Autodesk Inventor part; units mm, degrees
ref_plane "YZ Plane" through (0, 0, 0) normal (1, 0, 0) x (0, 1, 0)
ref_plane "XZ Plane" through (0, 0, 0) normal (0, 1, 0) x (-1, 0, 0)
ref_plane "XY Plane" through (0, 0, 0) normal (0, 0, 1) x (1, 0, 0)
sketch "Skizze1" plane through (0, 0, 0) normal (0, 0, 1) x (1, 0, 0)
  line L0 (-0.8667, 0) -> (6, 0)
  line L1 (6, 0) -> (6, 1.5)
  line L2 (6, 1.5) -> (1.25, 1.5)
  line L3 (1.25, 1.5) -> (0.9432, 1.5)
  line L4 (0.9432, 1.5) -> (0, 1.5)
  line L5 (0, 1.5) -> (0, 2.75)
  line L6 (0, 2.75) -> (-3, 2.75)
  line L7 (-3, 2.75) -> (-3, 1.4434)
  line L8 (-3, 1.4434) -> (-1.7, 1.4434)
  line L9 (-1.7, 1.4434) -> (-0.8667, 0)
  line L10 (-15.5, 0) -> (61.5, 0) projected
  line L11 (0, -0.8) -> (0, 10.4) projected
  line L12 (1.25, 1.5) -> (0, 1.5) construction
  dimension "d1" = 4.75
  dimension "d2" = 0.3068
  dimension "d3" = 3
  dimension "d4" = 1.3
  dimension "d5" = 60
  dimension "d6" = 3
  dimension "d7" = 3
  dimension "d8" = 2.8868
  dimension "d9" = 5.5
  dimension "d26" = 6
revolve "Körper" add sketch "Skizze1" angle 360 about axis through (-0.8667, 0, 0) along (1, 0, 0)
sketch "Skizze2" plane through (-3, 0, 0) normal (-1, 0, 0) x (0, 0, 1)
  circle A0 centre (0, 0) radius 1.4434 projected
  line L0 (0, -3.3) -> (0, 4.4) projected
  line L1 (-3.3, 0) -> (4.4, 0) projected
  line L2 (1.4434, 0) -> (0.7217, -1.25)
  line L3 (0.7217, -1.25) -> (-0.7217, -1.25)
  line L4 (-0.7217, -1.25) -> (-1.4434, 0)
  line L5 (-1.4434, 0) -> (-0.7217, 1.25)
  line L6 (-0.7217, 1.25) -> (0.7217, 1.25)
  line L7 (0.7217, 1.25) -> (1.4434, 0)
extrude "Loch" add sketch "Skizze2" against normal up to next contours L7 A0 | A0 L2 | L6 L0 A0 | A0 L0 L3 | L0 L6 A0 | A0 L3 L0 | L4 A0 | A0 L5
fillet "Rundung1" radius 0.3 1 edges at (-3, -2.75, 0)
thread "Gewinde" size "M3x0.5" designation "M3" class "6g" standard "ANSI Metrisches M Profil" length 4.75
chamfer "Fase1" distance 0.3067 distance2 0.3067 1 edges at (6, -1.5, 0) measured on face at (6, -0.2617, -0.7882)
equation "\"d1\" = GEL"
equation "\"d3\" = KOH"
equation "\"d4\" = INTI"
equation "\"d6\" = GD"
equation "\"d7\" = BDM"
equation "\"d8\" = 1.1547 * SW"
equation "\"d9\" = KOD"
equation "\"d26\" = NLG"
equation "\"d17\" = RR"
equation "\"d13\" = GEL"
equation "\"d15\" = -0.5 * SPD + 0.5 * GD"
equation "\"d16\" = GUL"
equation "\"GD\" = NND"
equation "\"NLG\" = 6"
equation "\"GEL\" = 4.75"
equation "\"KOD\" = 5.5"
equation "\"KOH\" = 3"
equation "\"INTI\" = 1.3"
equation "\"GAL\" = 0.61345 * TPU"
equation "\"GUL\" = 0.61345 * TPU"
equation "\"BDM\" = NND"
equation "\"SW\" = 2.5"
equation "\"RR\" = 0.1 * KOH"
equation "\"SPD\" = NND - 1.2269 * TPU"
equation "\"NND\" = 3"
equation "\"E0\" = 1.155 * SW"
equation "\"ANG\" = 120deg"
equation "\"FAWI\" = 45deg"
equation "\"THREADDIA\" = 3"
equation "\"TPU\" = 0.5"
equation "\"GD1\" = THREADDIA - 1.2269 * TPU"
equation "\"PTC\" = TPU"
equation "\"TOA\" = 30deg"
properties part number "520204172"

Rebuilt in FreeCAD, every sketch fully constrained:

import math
import FreeCAD as App
import Part
import Sketcher
from FreeCAD import Vector
Q = App.Units.Quantity


def edges_at(feature, points):
    """Names of the edges that pass closest to the given points."""
    edges = feature.Shape.Edges
    near = lambda p: min(range(len(edges)), key=lambda i: edges[i].distToShape(Part.Vertex(*p))[0])
    return sorted({f"Edge{near(p) + 1}" for p in points})


def add_polygon(sketch, points):
    """Adds a closed chain of lines whose ends are joined by coincident constraints."""
    first, n = sketch.GeometryCount, len(points)
    for a, b in zip(points, points[1:] + points[:1]):
        sketch.addGeometry(Part.LineSegment(App.Vector(*a, 0), App.Vector(*b, 0)), False)
    for i in range(n):
        sketch.addConstraint(Sketcher.Constraint("Coincident", first + i, 2, first + (i + 1) % n, 1))

doc = App.newDocument("Part")
body = doc.addObject("PartDesign::Body", "Body")

# Sketch on XY plane
sketch1 = body.newObject("Sketcher::SketchObject", "Sketch")
sketch1.AttachmentSupport = (doc.getObject("XY_Plane"), [""])
sketch1.MapMode = "FlatFace"
add_polygon(sketch1, [(-1.7, 1.4), (-0.9, 0), (6, 0), (6, 1.5), (0, 1.5), (0, 2.8), (-3, 2.8), (-3, 1.4)])  # lines 0-7
sketch1.addConstraint(Sketcher.Constraint("Horizontal", 1))
sketch1.addConstraint(Sketcher.Constraint("Vertical", 2))
sketch1.addConstraint(Sketcher.Constraint("Horizontal", 3))
sketch1.addConstraint(Sketcher.Constraint("Vertical", 4))
sketch1.addConstraint(Sketcher.Constraint("Horizontal", 5))
sketch1.addConstraint(Sketcher.Constraint("Vertical", 6))
sketch1.addConstraint(Sketcher.Constraint("Horizontal", 7))
sketch1.addConstraint(Sketcher.Constraint("PointOnObject", 0, 2, -1))
sketch1.addConstraint(Sketcher.Constraint("PointOnObject", 3, 2, -2))
sketch1.addConstraint(Sketcher.Constraint("DistanceX", 3, 2, 3, 1, 6.0))
sketch1.addConstraint(Sketcher.Constraint("DistanceX", 5, 2, 5, 1, 3.0))
sketch1.addConstraint(Sketcher.Constraint("DistanceX", 7, 1, 7, 2, 1.3))
sketch1.addConstraint(Sketcher.Constraint("DistanceY", 2, 1, 2, 2, 1.5))
sketch1.addConstraint(Sketcher.Constraint("DistanceY", 4, 1, 4, 2, 1.25))
sketch1.addConstraint(Sketcher.Constraint("DistanceX", 1, 1, 1, 2, 6.8667))
sketch1.addConstraint(Sketcher.Constraint("DistanceY", 6, 2, 6, 1, 1.3066))
revolution = body.newObject("PartDesign::Revolution", "Revolution")
revolution.Profile = sketch1
revolution.ReferenceAxis = (sketch1, ["H_Axis"])
revolution.Angle = 360

# Sketch on YZ plane
sketch2 = body.newObject("Sketcher::SketchObject", "Sketch001")
sketch2.AttachmentSupport = (doc.getObject("YZ_Plane"), [""])
sketch2.MapMode = "FlatFace"
sketch2.AttachmentOffset = App.Placement(Vector(0, 0, -3), App.Rotation())
sketch2.addGeometry(Part.LineSegment(Vector(1.2, 0.7, 0), Vector(0, 1.4, 0)), False)
sketch2.addGeometry(Part.ArcOfCircle(Part.Circle(Vector(0, 0, 0), Vector(0, 0, 1), 1.4), math.radians(30), math.radians(90)), False)
sketch2.addGeometry(Part.ArcOfCircle(Part.Circle(Vector(0, 0, 0), Vector(0, 0, 1), 1.4), math.radians(90), math.radians(150)), False)
sketch2.addGeometry(Part.LineSegment(Vector(0, 1.4, 0), Vector(-1.2, 0.7, 0)), False)
sketch2.addGeometry(Part.ArcOfCircle(Part.Circle(Vector(0, 0, 0), Vector(0, 0, 1), 1.4), math.radians(-30), math.radians(30)), False)
sketch2.addGeometry(Part.LineSegment(Vector(1.2, 0.7, 0), Vector(1.2, -0.7, 0)), False)
sketch2.addGeometry(Part.LineSegment(Vector(-1.2, 0.7, 0), Vector(-1.2, -0.7, 0)), False)
sketch2.addGeometry(Part.ArcOfCircle(Part.Circle(Vector(0, 0, 0), Vector(0, 0, 1), 1.4), math.radians(150), math.radians(210)), False)
sketch2.addGeometry(Part.LineSegment(Vector(-1.2, -0.7, 0), Vector(0, -1.4, 0)), False)
sketch2.addGeometry(Part.ArcOfCircle(Part.Circle(Vector(0, 0, 0), Vector(0, 0, 1), 1.4), math.radians(-150), math.radians(-90)), False)
sketch2.addGeometry(Part.ArcOfCircle(Part.Circle(Vector(0, 0, 0), Vector(0, 0, 1), 1.4), math.radians(-90), math.radians(-30)), False)
sketch2.addGeometry(Part.LineSegment(Vector(0, -1.4, 0), Vector(1.2, -0.7, 0)), False)
sketch2.addConstraint(Sketcher.Constraint("Coincident", 0, 1, 1, 1))
sketch2.addConstraint(Sketcher.Constraint("Coincident", 1, 2, 0, 2))
sketch2.addConstraint(Sketcher.Constraint("Coincident", 2, 1, 3, 1))
sketch2.addConstraint(Sketcher.Constraint("Coincident", 3, 2, 2, 2))
sketch2.addConstraint(Sketcher.Constraint("Coincident", 4, 1, 5, 2))
sketch2.addConstraint(Sketcher.Constraint("Coincident", 5, 1, 4, 2))
sketch2.addConstraint(Sketcher.Constraint("Coincident", 6, 1, 7, 1))
sketch2.addConstraint(Sketcher.Constraint("Coincident", 7, 2, 6, 2))
sketch2.addConstraint(Sketcher.Constraint("Coincident", 8, 1, 9, 1))
sketch2.addConstraint(Sketcher.Constraint("Coincident", 9, 2, 8, 2))
sketch2.addConstraint(Sketcher.Constraint("Coincident", 10, 1, 11, 1))
sketch2.addConstraint(Sketcher.Constraint("Coincident", 11, 2, 10, 2))
sketch2.addConstraint(Sketcher.Constraint("Vertical", 5))
sketch2.addConstraint(Sketcher.Constraint("Vertical", 6))
sketch2.addConstraint(Sketcher.Constraint("Coincident", 1, 3, -1, 1))
sketch2.addConstraint(Sketcher.Constraint("Coincident", 2, 3, -1, 1))
sketch2.addConstraint(Sketcher.Constraint("Coincident", 4, 3, -1, 1))
sketch2.addConstraint(Sketcher.Constraint("Coincident", 7, 3, -1, 1))
sketch2.addConstraint(Sketcher.Constraint("Coincident", 9, 3, -1, 1))
sketch2.addConstraint(Sketcher.Constraint("Coincident", 10, 3, -1, 1))
sketch2.addConstraint(Sketcher.Constraint("Coincident", 2, 1, 1, 2))
sketch2.addConstraint(Sketcher.Constraint("Coincident", 5, 1, 0, 1))
sketch2.addConstraint(Sketcher.Constraint("Coincident", 6, 1, 3, 2))
sketch2.addConstraint(Sketcher.Constraint("Coincident", 8, 1, 7, 2))
sketch2.addConstraint(Sketcher.Constraint("Coincident", 10, 1, 9, 2))
sketch2.addConstraint(Sketcher.Constraint("PointOnObject", 1, 2, -2))
sketch2.addConstraint(Sketcher.Constraint("PointOnObject", 9, 2, -2))
sketch2.addConstraint(Sketcher.Constraint("Parallel", 0, 8))
sketch2.addConstraint(Sketcher.Constraint("Parallel", 3, 11))
sketch2.addConstraint(Sketcher.Constraint("Angle", 0, Q("149.9996 deg")))
sketch2.addConstraint(Sketcher.Constraint("Radius", 1, 1.4434))
pad1 = body.newObject("PartDesign::Pad", "Pad")
pad1.Profile = sketch2
pad1.Type = "UpToFirst"
doc.recompute()

fillet = body.newObject("PartDesign::Fillet", "Fillet")
fillet.Base = (pad1, edges_at(pad1, [(-3, -2.75, 0)]))
fillet.Radius = 0.3
doc.recompute()

chamfer = body.newObject("PartDesign::Chamfer", "Chamfer")
chamfer.Base = (fillet, edges_at(fillet, [(6, -1.5, 0)]))
chamfer.ChamferType = "Two distances"
chamfer.Size = 0.3067
chamfer.Size2 = 0.3067

doc.recompute()
